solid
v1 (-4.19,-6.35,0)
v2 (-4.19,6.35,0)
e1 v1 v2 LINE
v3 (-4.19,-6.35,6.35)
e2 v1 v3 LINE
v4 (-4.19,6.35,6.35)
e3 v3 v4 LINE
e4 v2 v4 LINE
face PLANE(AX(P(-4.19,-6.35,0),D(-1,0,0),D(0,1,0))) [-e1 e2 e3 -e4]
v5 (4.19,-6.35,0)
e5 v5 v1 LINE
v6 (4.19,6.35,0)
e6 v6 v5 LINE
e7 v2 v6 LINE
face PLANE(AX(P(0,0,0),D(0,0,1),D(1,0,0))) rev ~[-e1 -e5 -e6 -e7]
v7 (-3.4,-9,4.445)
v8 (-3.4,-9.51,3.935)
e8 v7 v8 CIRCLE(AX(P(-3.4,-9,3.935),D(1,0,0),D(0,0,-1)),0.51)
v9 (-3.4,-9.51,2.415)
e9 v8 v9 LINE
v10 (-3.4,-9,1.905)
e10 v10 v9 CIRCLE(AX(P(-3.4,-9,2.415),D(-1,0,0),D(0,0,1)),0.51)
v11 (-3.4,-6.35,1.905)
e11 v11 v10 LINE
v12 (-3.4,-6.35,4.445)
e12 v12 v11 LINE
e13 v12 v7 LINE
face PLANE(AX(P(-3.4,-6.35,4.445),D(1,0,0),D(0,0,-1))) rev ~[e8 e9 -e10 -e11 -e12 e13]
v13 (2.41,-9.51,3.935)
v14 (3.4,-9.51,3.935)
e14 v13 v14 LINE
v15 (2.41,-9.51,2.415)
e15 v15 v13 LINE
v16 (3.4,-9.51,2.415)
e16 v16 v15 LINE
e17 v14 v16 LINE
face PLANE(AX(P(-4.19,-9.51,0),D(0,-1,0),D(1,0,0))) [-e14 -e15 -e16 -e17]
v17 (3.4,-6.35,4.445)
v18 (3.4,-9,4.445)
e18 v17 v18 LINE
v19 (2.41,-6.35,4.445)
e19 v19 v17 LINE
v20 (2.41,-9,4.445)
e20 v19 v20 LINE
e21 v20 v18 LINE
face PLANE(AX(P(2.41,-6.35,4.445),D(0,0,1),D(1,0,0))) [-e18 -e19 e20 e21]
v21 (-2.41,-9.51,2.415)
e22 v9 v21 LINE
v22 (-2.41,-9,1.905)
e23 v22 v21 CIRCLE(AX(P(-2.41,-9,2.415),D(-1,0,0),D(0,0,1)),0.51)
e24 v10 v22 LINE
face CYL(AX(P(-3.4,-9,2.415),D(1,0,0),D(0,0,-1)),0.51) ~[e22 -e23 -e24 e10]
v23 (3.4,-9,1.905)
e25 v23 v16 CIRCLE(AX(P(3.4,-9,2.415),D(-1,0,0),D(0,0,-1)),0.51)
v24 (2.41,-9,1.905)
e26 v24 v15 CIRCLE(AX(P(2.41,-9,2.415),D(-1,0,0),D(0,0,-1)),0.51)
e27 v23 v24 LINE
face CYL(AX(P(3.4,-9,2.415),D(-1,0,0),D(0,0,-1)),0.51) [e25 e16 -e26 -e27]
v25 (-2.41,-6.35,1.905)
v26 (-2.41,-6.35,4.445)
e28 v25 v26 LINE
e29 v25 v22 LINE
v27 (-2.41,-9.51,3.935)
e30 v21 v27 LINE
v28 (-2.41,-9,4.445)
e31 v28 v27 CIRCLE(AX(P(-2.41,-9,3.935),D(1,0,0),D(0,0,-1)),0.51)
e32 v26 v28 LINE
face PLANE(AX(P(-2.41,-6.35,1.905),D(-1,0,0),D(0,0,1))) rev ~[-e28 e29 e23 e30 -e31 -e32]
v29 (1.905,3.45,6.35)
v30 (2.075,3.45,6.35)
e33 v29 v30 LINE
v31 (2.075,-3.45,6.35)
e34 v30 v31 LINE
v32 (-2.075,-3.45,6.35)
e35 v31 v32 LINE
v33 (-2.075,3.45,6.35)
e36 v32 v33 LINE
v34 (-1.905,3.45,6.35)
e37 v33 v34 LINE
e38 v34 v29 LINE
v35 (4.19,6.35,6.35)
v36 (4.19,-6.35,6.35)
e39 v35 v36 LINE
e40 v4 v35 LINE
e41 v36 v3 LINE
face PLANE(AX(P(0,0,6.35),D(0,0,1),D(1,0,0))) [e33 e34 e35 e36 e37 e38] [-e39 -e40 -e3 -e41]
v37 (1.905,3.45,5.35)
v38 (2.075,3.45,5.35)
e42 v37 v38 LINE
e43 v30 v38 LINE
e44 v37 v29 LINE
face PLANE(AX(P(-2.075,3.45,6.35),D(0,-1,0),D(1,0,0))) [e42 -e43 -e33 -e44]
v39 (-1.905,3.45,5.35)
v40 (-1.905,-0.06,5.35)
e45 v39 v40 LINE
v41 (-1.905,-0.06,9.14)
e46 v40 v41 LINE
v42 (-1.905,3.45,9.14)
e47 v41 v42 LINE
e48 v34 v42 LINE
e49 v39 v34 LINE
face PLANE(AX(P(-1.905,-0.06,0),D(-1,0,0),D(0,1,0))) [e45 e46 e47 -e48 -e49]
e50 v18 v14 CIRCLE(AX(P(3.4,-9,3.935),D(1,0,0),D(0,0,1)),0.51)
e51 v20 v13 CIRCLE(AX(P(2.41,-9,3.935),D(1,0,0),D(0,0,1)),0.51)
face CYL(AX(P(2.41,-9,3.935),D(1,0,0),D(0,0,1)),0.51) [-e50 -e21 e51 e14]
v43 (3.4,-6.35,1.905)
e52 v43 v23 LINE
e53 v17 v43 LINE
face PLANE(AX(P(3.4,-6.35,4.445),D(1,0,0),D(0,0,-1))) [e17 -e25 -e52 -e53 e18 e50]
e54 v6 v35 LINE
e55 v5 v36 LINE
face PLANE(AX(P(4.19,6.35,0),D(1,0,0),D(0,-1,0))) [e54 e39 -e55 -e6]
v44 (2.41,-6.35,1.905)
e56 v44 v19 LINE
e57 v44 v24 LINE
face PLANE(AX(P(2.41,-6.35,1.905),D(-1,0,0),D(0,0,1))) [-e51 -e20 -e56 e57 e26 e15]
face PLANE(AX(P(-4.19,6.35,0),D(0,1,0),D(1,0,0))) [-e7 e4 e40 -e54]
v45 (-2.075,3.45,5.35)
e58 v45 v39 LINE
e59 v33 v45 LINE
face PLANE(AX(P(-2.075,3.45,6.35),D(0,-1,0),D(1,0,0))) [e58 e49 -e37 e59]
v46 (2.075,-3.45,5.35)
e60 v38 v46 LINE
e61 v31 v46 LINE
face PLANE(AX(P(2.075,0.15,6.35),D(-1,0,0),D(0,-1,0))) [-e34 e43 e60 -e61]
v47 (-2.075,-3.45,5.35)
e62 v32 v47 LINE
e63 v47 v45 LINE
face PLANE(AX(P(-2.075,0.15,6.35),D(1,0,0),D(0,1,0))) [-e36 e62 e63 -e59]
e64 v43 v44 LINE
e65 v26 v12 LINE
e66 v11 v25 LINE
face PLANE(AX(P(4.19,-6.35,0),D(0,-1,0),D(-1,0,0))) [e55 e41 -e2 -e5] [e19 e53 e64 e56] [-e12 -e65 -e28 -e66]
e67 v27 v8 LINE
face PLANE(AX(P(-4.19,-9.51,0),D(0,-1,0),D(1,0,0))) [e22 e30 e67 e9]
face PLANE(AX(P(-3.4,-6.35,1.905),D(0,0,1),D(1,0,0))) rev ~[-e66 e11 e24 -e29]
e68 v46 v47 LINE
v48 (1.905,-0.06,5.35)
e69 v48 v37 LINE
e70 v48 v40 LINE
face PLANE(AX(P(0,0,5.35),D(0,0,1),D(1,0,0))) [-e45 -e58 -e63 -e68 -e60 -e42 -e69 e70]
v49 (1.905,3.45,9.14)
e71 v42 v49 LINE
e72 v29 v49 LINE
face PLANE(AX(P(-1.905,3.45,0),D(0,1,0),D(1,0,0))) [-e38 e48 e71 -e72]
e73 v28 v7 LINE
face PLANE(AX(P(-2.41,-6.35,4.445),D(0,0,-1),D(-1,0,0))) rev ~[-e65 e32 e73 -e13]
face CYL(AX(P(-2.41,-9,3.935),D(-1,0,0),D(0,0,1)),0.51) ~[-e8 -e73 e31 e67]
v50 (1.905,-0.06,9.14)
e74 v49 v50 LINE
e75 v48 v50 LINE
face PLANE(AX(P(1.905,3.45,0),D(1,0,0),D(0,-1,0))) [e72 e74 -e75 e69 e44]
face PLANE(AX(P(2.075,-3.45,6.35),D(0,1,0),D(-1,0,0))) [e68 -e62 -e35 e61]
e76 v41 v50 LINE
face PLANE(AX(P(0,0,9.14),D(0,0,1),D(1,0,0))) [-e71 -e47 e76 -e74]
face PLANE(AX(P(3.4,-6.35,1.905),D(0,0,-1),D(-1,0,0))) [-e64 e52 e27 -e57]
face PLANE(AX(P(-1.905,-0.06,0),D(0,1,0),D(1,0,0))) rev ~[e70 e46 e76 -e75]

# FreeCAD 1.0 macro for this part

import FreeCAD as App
import Part
import Sketcher
Q = App.Units.Quantity


def edges_at(feature, points):
    """Names of the edges that pass closest to the given points."""
    edges = feature.Shape.Edges
    near = lambda p: min(range(len(edges)), key=lambda i: edges[i].distToShape(Part.Vertex(*p))[0])
    return sorted({f"Edge{near(p) + 1}" for p in points})


def add_polygon(sketch, points):
    """Adds a closed chain of lines whose ends are joined by coincident constraints."""
    first, n = sketch.GeometryCount, len(points)
    for a, b in zip(points, points[1:] + points[:1]):
        sketch.addGeometry(Part.LineSegment(App.Vector(*a, 0), App.Vector(*b, 0)), False)
    for i in range(n):
        sketch.addConstraint(Sketcher.Constraint("Coincident", first + i, 2, first + (i + 1) % n, 1))

doc = App.newDocument("Part")
body = doc.addObject("PartDesign::Body", "Body")

# Sketch on XY plane
sketch1 = doc.addObject("Sketcher::SketchObject", "Sketch")
body.addObject(sketch1)
sketch1.AttachmentSupport = (doc.XY_Plane, [""])
sketch1.MapMode = "FlatFace"
add_polygon(sketch1, [(4, 6), (-4, 6), (-4, -6), (4, -6)])  # lines 0-3
sketch1.addConstraint(Sketcher.Constraint("Horizontal", 0))
sketch1.addConstraint(Sketcher.Constraint("Vertical", 1))
sketch1.addConstraint(Sketcher.Constraint("Horizontal", 2))
sketch1.addConstraint(Sketcher.Constraint("Vertical", 3))
sketch1.addConstraint(Sketcher.Constraint("Symmetric", 0, 2, 2, 2, -1, 1))
sketch1.addConstraint(Sketcher.Constraint("DistanceY", 1, 2, 1, 1, Q("0.5 in")))
sketch1.addConstraint(Sketcher.Constraint("DistanceX", 0, 2, 0, 1, Q("8.38 mm")))
pad1 = doc.addObject("PartDesign::Pad", "Pad")
body.addObject(pad1)
pad1.Profile = sketch1
pad1.Length = Q("0.25 in")

# Sketch on XY plane
sketch2 = doc.addObject("Sketcher::SketchObject", "Sketch001")
body.addObject(sketch2)
sketch2.AttachmentSupport = (doc.XY_Plane, [""])
sketch2.MapMode = "FlatFace"
sketch2.AttachmentOffset = App.Placement(App.Vector(0, 0, 0.25 * 25.4), App.Rotation())
add_polygon(sketch2, [(2.1, 3.5), (-2.1, 3.5), (-2.1, -3.5), (2.1, -3.5)])  # lines 0-3
sketch2.addConstraint(Sketcher.Constraint("Horizontal", 0))
sketch2.addConstraint(Sketcher.Constraint("Vertical", 1))
sketch2.addConstraint(Sketcher.Constraint("Horizontal", 2))
sketch2.addConstraint(Sketcher.Constraint("Vertical", 3))
sketch2.addConstraint(Sketcher.Constraint("Symmetric", 0, 2, 2, 2, -1, 1))
sketch2.addConstraint(Sketcher.Constraint("DistanceX", 0, 2, 0, 1, Q("4.15 mm")))
sketch2.addConstraint(Sketcher.Constraint("DistanceY", 1, 2, 1, 1, Q("6.9 mm")))
pocket1 = doc.addObject("PartDesign::Pocket", "Pocket")
body.addObject(pocket1)
pocket1.Profile = sketch2
pocket1.Length = 1

# Sketch on XY plane
sketch3 = doc.addObject("Sketcher::SketchObject", "Sketch002")
body.addObject(sketch3)
sketch3.AttachmentSupport = (doc.XY_Plane, [""])
sketch3.MapMode = "FlatFace"
add_polygon(sketch3, [(1.9, 3.5), (-1.9, 3.5), (-1.9, -0.1), (1.9, -0.1)])  # lines 0-3
sketch3.addConstraint(Sketcher.Constraint("Horizontal", 0))
sketch3.addConstraint(Sketcher.Constraint("Vertical", 1))
sketch3.addConstraint(Sketcher.Constraint("Horizontal", 2))
sketch3.addConstraint(Sketcher.Constraint("Vertical", 3))
sketch3.addConstraint(Sketcher.Constraint("DistanceX", 0, 2, 0, 1, Q("0.15 in")))
sketch3.addConstraint(Sketcher.Constraint("DistanceY", 1, 2, 1, 1, Q("0.1382 in")))
sketch3.addConstraint(Sketcher.Constraint("DistanceX", 0, 2, -1, 1, Q("0.075 in")))
sketch3.addConstraint(Sketcher.Constraint("DistanceY", -1, 1, 0, 2, Q("3.45 mm")))
pad2 = doc.addObject("PartDesign::Pad", "Pad001")
body.addObject(pad2)
pad2.Profile = sketch3
pad2.Length = 9.14

# Sketch on XZ plane
sketch4 = doc.addObject("Sketcher::SketchObject", "Sketch003")
body.addObject(sketch4)
sketch4.AttachmentSupport = (doc.XZ_Plane, [""])
sketch4.MapMode = "FlatFace"
sketch4.AttachmentOffset = App.Placement(App.Vector(0, 0, 0.25 * 25.4), App.Rotation())
add_polygon(sketch4, [(3.4, 4.4), (2.4, 4.4), (2.4, 1.9), (3.4, 1.9)])  # lines 0-3
add_polygon(sketch4, [(-2.4, 1.9), (-2.4, 4.4), (-3.4, 4.4), (-3.4, 1.9)])  # lines 4-7
sketch4.addConstraint(Sketcher.Constraint("Horizontal", 0))
sketch4.addConstraint(Sketcher.Constraint("Vertical", 1))
sketch4.addConstraint(Sketcher.Constraint("Horizontal", 2))
sketch4.addConstraint(Sketcher.Constraint("Vertical", 3))
sketch4.addConstraint(Sketcher.Constraint("Vertical", 4))
sketch4.addConstraint(Sketcher.Constraint("Horizontal", 5))
sketch4.addConstraint(Sketcher.Constraint("Vertical", 6))
sketch4.addConstraint(Sketcher.Constraint("Horizontal", 7))
sketch4.addConstraint(Sketcher.Constraint("Symmetric", 0, 2, 4, 2, -2))
sketch4.addConstraint(Sketcher.Constraint("Symmetric", 2, 2, 6, 2, -2))
sketch4.addConstraint(Sketcher.Constraint("DistanceY", 1, 2, 1, 1, Q("0.1 in")))
sketch4.addConstraint(Sketcher.Constraint("DistanceX", 0, 2, 0, 1, Q("0.99 mm")))
sketch4.addConstraint(Sketcher.Constraint("DistanceX", 5, 2, 3, 2, Q("6.8 mm")))
sketch4.addConstraint(Sketcher.Constraint("DistanceY", -1, 1, 0, 2, Q("0.175 in")))
pad3 = doc.addObject("PartDesign::Pad", "Pad002")
body.addObject(pad3)
pad3.Profile = sketch4
pad3.Length = Q("0.1244094 in")
doc.recompute()

fillet = doc.addObject("PartDesign::Fillet", "Fillet")
body.addObject(fillet)
fillet.Base = (pad3, edges_at(pad3, [
    (-2.905, -9.51, 4.445),
    (-2.905, -9.51, 1.905),
    (2.905, -9.51, 4.445),
    (2.905, -9.51, 1.905),
]))
fillet.Radius = 0.51

doc.recompute()
